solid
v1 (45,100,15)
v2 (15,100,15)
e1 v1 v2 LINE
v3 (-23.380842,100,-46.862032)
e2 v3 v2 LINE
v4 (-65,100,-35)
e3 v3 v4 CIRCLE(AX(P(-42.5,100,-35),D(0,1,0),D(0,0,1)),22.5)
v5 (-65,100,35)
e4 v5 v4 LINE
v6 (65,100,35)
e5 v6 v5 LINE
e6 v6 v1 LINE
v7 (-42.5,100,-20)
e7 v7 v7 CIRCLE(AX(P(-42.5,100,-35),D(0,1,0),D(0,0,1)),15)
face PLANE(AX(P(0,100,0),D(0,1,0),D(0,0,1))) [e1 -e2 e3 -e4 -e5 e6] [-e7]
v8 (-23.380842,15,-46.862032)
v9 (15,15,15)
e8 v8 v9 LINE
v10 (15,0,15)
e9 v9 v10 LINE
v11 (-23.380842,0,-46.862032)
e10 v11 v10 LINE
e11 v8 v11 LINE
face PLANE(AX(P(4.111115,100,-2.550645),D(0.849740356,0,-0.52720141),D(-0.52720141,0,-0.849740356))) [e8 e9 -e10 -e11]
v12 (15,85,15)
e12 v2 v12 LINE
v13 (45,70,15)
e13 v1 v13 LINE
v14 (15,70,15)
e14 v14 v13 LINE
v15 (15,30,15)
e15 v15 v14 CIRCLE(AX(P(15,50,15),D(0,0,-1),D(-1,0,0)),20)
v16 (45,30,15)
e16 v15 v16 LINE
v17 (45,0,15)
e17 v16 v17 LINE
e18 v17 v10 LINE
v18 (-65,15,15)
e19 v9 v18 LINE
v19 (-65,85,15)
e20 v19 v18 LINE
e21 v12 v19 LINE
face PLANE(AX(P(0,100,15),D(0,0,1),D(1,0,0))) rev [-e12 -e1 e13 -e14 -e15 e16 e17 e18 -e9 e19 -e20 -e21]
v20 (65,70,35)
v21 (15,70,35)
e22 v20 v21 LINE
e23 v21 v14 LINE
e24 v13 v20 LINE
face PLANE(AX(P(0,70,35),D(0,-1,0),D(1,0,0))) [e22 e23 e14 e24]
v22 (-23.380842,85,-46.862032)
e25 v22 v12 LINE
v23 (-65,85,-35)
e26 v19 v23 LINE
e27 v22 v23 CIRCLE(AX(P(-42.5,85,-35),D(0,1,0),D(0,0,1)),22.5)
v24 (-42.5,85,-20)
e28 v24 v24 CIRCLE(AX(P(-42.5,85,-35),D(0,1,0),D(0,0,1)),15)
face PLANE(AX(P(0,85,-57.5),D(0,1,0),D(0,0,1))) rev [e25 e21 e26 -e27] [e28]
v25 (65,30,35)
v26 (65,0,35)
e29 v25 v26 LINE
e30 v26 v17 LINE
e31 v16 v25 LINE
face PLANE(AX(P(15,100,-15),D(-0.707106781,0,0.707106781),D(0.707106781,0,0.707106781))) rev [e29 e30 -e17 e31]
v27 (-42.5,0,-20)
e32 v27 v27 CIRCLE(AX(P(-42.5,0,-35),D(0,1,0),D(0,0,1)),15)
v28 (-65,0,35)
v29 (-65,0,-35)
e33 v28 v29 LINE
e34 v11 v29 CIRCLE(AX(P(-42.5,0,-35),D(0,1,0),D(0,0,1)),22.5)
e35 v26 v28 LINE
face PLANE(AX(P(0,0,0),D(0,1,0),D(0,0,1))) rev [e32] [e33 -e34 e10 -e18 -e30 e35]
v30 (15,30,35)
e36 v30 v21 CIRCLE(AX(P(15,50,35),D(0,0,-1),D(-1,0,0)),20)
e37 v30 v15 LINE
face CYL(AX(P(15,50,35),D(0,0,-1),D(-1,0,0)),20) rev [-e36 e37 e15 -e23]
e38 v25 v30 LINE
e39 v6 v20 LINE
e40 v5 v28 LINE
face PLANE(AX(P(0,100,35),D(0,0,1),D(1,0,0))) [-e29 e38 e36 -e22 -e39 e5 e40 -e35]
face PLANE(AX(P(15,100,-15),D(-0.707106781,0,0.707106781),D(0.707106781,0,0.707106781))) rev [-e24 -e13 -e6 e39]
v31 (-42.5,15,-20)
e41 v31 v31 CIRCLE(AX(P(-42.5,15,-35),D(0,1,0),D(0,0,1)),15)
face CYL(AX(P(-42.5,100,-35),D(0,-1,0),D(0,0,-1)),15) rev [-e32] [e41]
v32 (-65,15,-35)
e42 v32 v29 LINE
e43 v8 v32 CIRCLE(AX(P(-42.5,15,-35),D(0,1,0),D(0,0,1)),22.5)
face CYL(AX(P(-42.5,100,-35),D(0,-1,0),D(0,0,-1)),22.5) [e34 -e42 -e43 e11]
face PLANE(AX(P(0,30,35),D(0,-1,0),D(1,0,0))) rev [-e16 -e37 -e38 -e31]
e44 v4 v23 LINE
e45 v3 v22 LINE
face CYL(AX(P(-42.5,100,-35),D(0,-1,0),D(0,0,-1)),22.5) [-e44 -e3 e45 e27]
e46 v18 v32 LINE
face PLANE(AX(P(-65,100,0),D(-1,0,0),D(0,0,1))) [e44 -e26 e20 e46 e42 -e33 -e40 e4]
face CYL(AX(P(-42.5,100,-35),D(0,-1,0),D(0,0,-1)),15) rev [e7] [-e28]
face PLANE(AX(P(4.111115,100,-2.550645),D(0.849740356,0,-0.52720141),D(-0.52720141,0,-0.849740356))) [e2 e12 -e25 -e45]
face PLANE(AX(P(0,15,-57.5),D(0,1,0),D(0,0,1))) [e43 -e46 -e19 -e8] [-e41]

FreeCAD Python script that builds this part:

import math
import FreeCAD as App
import Part
import Sketcher
from FreeCAD import Vector
Q = App.Units.Quantity

doc = App.newDocument("Part")
params = doc.addObject("Spreadsheet::Sheet", "Params")
for row, (alias, value) in enumerate([
    ("sketch1_diameter", "30 mm"),
    ("sketch1_radius", "22.5 mm"),
    ("sketch1_width", "30 mm"),
    ("sketch1_width2", "130 mm"),
    ("sketch1_height", "70 mm"),
    ("pad1_length", "100 mm"),
    ("sketch2_radius", "20 mm"),
    ("sketch2_width", "30 mm"),
    ("sketch2_height", "15 mm"),
    ("sketch3_radius", "20 mm"),
], start=1):
    params.set(f"A{row}", alias)
    params.set(f"B{row}", "=" + value)
    params.setAlias(f"B{row}", alias)

body = doc.addObject("PartDesign::Body", "Body")

sketch1 = body.newObject("Sketcher::SketchObject", "Sketch")
sketch1.AttachmentSupport = (doc.getObject("XZ_Plane"), [""])
sketch1.MapMode = "FlatFace"
sketch1.addGeometry([
    Part.LineSegment(Vector(65, 35, 0), Vector(45, 15, 0)),
    Part.LineSegment(Vector(45, 15, 0), Vector(15, 15, 0)),
    Part.LineSegment(Vector(15, 15, 0), Vector(-16, -35, 0)),
    Part.LineSegment(Vector(-16, -35, 0), Vector(-23, -47, 0)),
    Part.ArcOfCircle(Part.Circle(Vector(-42, -35, 0), Vector(0, 0, 1), 22), math.radians(180), math.radians(328)),
    Part.LineSegment(Vector(-65, -35, 0), Vector(-65, 35, 0)),
    Part.LineSegment(Vector(-65, 35, 0), Vector(65, 35, 0)),
    Part.Circle(Vector(-42, -35, 0), Vector(0, 0, 1), 15),
], False)
sketch1.addConstraint([
    Sketcher.Constraint("Coincident", 0, 2, 1, 1),
    Sketcher.Constraint("Coincident", 1, 2, 2, 1),
    Sketcher.Constraint("Coincident", 2, 2, 3, 1),
    Sketcher.Constraint("Tangent", 3, 2, 4, 2),
    Sketcher.Constraint("Tangent", 4, 1, 5, 1),
    Sketcher.Constraint("Coincident", 5, 2, 6, 1),
    Sketcher.Constraint("Coincident", 6, 2, 0, 1),
    Sketcher.Constraint("Horizontal", 1),
    Sketcher.Constraint("Vertical", 5),
    Sketcher.Constraint("Horizontal", 6),
    Sketcher.Constraint("Coincident", 7, 3, 4, 3),
    Sketcher.Constraint("Symmetric", 4, 1, 6, 2, -1, 1),
    Sketcher.Constraint("Parallel", 2, 3),
    Sketcher.Constraint("Horizontal", 7, 3, 2, 2),
    Sketcher.Constraint("Diameter", 7, 30.0),
    Sketcher.Constraint("Radius", 4, 22.5),
    Sketcher.Constraint("DistanceX", 1, 2, 1, 1, 30.0),
    Sketcher.Constraint("DistanceX", 6, 1, 6, 2, 130.0),
    Sketcher.Constraint("DistanceY", 5, 1, 5, 2, 70.0),
    Sketcher.Constraint("Angle", 0, Q("-135 deg")),
    Sketcher.Constraint("DistanceX", -1, 1, 0, 2, 45.0),
])
sketch1.setExpression("Constraints[14]", "Params.sketch1_diameter")
sketch1.setExpression("Constraints[15]", "Params.sketch1_radius")
sketch1.setExpression("Constraints[16]", "Params.sketch1_width")
sketch1.setExpression("Constraints[17]", "Params.sketch1_width2")
sketch1.setExpression("Constraints[18]", "Params.sketch1_height")
pad1 = body.newObject("PartDesign::Pad", "Pad")
pad1.Profile = sketch1
pad1.setExpression("Length", "Params.pad1_length")
pad1.Reversed = True

sketch2 = body.newObject("Sketcher::SketchObject", "Sketch001")
sketch2.AttachmentSupport = (doc.getObject("XY_Plane"), [""])
sketch2.MapMode = "FlatFace"
sketch2.AttachmentOffset = App.Placement(Vector(0, 0, 15), App.Rotation())
sketch2.addGeometry([
    Part.LineSegment(Vector(45, 85, 0), Vector(45, 70, 0)),
    Part.LineSegment(Vector(45, 70, 0), Vector(15, 70, 0)),
    Part.ArcOfCircle(Part.Circle(Vector(15, 50, 0), Vector(0, 0, 1), 20), math.radians(90), math.radians(270)),
    Part.LineSegment(Vector(15, 30, 0), Vector(45, 30, 0)),
    Part.LineSegment(Vector(45, 30, 0), Vector(45, 15, 0)),
    Part.LineSegment(Vector(45, 15, 0), Vector(-77, 15, 0)),
    Part.LineSegment(Vector(-77, 15, 0), Vector(-77, 85, 0)),
    Part.LineSegment(Vector(-77, 85, 0), Vector(45, 85, 0)),
], False)
sketch2.addConstraint([
    Sketcher.Constraint("Coincident", 0, 2, 1, 1),
    Sketcher.Constraint("Tangent", 1, 2, 2, 1),
    Sketcher.Constraint("Tangent", 2, 2, 3, 1),
    Sketcher.Constraint("Coincident", 3, 2, 4, 1),
    Sketcher.Constraint("Coincident", 4, 2, 5, 1),
    Sketcher.Constraint("Coincident", 5, 2, 6, 1),
    Sketcher.Constraint("Coincident", 6, 2, 7, 1),
    Sketcher.Constraint("Coincident", 7, 2, 0, 1),
    Sketcher.Constraint("Vertical", 0),
    Sketcher.Constraint("Horizontal", 1),
    Sketcher.Constraint("Horizontal", 3),
    Sketcher.Constraint("Vertical", 4),
    Sketcher.Constraint("Horizontal", 5),
    Sketcher.Constraint("Vertical", 6),
    Sketcher.Constraint("Horizontal", 7),
    Sketcher.Constraint("Vertical", 0, 2, 3, 2),
    Sketcher.Constraint("Equal", 0, 4),
    Sketcher.Constraint("Radius", 2, 20.0),
    Sketcher.Constraint("DistanceX", 1, 2, 1, 1, 30.0),
    Sketcher.Constraint("DistanceY", 0, 2, 0, 1, 15.0),
    Sketcher.Constraint("DistanceX", -1, 1, 2, 3, 15.0),
    Sketcher.Constraint("DistanceY", -1, 1, 2, 3, 50.0),
    Sketcher.Constraint("DistanceX", 5, 2, 5, 1, 121.993822),
])
sketch2.setExpression("Constraints[17]", "Params.sketch2_radius")
sketch2.setExpression("Constraints[18]", "Params.sketch2_width")
sketch2.setExpression("Constraints[19]", "Params.sketch2_height")
pocket1 = body.newObject("PartDesign::Pocket", "Pocket")
pocket1.Profile = sketch2
pocket1.Type = "ThroughAll"

sketch3 = body.newObject("Sketcher::SketchObject", "Sketch002")
sketch3.AttachmentSupport = (doc.getObject("XY_Plane"), [""])
sketch3.MapMode = "FlatFace"
sketch3.AttachmentOffset = App.Placement(Vector(0, 0, 15), App.Rotation())
sketch3.addGeometry([
    Part.LineSegment(Vector(15, 70, 0), Vector(107, 70, 0)),
    Part.LineSegment(Vector(107, 70, 0), Vector(107, 30, 0)),
    Part.LineSegment(Vector(107, 30, 0), Vector(15, 30, 0)),
    Part.ArcOfCircle(Part.Circle(Vector(15, 50, 0), Vector(0, 0, 1), 20), math.radians(90), math.radians(270)),
], False)
sketch3.addConstraint([
    Sketcher.Constraint("Coincident", 0, 2, 1, 1),
    Sketcher.Constraint("Coincident", 1, 2, 2, 1),
    Sketcher.Constraint("Tangent", 2, 2, 3, 2),
    Sketcher.Constraint("Tangent", 3, 1, 0, 1),
    Sketcher.Constraint("Horizontal", 0),
    Sketcher.Constraint("Vertical", 1),
    Sketcher.Constraint("Horizontal", 2),
    Sketcher.Constraint("Radius", 3, 20.0),
    Sketcher.Constraint("DistanceX", -1, 1, 3, 3, 15.0),
    Sketcher.Constraint("DistanceY", -1, 1, 3, 3, 50.0),
    Sketcher.Constraint("DistanceX", 0, 1, 0, 2, 91.993822),
])
sketch3.setExpression("Constraints[7]", "Params.sketch3_radius")
pocket2 = body.newObject("PartDesign::Pocket", "Pocket001")
pocket2.Profile = sketch3
pocket2.Type = "ThroughAll"
pocket2.Midplane = True

doc.recompute()
